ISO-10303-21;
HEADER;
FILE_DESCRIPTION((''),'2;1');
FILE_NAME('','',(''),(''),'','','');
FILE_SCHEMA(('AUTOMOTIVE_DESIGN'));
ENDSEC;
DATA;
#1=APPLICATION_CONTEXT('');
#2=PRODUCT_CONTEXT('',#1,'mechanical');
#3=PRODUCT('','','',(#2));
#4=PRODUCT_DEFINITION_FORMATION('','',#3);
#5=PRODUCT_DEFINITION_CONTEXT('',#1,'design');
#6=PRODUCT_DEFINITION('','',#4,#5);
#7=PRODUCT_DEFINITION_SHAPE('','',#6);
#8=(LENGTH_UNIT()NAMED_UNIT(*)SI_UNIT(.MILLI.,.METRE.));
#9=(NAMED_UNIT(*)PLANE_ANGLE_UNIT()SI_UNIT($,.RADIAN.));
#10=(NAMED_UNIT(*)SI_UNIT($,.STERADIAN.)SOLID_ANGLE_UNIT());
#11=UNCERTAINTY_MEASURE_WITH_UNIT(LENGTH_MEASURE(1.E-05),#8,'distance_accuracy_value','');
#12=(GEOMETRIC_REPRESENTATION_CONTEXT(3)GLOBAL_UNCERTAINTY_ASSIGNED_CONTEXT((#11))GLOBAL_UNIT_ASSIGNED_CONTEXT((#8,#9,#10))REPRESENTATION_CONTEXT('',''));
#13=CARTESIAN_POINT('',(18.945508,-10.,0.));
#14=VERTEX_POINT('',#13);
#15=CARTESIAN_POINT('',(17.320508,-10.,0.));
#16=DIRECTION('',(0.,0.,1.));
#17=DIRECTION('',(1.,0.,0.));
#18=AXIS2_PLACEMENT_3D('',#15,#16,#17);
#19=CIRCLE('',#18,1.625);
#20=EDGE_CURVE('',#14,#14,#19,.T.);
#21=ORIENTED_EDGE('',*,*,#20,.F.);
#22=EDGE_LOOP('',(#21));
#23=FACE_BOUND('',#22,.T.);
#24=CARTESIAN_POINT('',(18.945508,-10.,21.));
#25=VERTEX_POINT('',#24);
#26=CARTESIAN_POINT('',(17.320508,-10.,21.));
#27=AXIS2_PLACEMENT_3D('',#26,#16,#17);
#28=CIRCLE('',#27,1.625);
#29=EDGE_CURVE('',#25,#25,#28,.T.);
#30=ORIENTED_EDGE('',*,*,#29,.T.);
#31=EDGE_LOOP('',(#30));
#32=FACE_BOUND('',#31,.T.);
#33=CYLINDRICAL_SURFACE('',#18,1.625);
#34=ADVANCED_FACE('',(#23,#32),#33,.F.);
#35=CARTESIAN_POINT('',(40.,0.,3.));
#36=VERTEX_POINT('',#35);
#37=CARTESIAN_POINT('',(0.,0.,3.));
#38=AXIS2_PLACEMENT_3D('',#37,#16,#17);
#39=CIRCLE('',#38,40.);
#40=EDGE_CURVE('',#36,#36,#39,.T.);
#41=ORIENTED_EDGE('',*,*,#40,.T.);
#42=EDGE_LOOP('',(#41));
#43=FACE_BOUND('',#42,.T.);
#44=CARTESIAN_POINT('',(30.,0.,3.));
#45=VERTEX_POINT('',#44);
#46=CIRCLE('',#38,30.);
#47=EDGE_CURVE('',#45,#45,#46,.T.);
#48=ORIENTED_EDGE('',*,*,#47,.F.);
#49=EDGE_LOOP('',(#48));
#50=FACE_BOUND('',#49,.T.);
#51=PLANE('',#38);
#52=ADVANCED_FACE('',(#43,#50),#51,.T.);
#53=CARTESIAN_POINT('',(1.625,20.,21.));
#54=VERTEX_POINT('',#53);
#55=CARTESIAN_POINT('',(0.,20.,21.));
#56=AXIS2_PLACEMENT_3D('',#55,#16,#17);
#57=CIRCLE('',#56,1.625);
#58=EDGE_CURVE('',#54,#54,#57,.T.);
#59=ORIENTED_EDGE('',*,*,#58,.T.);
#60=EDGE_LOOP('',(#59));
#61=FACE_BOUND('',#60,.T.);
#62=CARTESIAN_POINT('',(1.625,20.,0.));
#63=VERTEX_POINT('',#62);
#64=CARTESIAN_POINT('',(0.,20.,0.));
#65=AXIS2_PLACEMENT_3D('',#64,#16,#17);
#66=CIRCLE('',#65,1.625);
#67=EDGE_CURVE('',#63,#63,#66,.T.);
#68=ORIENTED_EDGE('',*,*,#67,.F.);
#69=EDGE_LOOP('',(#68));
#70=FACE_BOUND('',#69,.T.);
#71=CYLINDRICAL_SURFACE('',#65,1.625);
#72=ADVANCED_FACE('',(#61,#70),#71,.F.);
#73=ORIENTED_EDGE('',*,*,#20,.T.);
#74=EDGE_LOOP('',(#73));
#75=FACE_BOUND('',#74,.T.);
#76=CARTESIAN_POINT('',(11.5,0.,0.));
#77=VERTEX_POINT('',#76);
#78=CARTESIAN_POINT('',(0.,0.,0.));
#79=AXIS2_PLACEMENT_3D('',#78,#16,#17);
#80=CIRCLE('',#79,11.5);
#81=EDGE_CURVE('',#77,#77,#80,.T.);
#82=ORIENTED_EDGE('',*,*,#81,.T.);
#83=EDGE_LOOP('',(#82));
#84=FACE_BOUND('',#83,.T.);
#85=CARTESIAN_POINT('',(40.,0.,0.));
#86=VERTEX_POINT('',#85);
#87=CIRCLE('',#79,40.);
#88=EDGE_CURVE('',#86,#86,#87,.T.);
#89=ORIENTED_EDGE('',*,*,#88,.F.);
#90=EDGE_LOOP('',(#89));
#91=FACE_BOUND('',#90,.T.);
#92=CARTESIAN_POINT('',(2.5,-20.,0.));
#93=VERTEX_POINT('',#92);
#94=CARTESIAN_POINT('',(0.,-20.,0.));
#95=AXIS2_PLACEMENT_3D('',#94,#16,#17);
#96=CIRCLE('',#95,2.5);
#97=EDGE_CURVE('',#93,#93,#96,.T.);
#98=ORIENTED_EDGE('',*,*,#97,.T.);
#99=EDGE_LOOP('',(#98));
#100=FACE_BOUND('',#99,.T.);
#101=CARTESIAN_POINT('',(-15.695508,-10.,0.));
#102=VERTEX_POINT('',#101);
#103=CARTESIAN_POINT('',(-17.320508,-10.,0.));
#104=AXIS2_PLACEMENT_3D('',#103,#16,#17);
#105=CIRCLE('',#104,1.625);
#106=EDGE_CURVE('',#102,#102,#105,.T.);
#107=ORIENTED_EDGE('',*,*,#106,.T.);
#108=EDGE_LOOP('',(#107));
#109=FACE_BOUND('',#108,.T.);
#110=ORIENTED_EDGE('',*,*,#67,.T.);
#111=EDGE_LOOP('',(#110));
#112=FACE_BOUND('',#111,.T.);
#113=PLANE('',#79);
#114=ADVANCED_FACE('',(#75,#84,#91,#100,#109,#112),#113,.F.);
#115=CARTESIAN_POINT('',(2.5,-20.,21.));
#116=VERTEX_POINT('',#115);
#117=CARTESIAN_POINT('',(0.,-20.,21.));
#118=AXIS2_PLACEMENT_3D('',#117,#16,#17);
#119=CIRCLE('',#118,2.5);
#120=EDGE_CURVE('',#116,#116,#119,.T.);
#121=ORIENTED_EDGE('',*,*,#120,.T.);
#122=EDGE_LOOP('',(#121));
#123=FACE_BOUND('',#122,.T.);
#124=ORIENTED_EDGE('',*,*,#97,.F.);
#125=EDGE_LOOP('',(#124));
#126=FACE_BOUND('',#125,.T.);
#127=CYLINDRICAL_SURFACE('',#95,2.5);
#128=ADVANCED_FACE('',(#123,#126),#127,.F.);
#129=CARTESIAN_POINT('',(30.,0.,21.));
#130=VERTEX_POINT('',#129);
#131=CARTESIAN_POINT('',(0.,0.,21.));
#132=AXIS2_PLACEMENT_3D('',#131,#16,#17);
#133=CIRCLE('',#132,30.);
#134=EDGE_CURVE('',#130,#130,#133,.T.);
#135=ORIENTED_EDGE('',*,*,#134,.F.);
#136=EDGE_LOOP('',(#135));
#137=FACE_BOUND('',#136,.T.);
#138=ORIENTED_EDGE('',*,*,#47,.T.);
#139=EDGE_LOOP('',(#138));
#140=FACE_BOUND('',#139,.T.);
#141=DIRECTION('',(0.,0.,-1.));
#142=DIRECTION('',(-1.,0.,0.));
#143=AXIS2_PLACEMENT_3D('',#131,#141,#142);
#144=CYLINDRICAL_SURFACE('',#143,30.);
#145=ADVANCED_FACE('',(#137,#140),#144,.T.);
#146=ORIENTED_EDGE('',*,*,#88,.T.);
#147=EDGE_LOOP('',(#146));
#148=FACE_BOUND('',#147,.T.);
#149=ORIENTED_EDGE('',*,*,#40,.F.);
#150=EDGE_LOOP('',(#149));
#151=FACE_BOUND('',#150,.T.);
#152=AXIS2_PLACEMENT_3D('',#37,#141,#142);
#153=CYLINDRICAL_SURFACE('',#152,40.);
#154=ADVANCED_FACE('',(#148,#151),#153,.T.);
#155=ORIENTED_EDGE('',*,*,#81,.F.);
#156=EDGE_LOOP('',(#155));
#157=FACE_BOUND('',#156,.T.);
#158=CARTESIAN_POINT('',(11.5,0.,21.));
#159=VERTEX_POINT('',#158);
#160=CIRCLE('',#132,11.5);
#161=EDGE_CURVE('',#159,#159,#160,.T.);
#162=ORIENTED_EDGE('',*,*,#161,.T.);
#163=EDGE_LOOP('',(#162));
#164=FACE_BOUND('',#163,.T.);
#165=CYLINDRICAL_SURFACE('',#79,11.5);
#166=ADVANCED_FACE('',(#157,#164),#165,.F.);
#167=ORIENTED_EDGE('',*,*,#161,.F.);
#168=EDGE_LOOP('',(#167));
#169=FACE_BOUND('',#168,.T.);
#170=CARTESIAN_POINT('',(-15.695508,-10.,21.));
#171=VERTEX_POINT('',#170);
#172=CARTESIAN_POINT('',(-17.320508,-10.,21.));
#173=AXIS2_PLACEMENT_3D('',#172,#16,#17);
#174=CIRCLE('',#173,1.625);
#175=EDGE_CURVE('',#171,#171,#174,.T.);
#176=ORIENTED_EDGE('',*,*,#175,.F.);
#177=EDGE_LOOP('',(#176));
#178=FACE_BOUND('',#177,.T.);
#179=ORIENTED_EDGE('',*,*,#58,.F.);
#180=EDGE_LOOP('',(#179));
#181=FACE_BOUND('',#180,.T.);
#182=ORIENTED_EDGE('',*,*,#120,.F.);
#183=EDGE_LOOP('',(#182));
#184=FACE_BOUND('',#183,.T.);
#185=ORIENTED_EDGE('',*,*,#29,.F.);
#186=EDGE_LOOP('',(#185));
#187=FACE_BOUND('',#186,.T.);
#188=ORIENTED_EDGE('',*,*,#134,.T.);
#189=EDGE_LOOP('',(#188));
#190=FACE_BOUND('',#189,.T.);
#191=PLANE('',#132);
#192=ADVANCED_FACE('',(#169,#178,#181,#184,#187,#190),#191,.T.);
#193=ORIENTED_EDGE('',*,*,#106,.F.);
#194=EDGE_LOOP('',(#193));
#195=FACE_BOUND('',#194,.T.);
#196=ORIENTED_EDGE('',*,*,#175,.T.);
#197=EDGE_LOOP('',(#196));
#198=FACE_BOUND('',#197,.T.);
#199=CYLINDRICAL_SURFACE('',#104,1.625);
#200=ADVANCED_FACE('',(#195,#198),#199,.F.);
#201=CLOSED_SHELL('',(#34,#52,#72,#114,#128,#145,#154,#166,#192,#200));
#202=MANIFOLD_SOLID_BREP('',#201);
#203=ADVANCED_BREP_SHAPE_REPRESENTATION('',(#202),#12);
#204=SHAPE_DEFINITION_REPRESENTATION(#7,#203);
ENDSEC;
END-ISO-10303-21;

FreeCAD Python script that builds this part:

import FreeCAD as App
import Part
import Sketcher

V = App.Vector

doc = App.newDocument("Part")
body = doc.addObject("PartDesign::Body", "Body")

# Sketch on XY plane
sketch1 = body.newObject("Sketcher::SketchObject", "Sketch")
sketch1.AttachmentSupport = (doc.getObject("XY_Plane"), [""])
sketch1.MapMode = "FlatFace"
sketch1.addGeometry(Part.Circle(V(0, 0, 0), V(0, 0, 1), 40), False)
sketch1.addConstraint(Sketcher.Constraint("Coincident", 0, 3, -1, 1))
sketch1.addConstraint(Sketcher.Constraint("Diameter", 0, 80.0))
pad1 = body.newObject("PartDesign::Pad", "Pad")
pad1.Profile = sketch1
pad1.Length = 3

# Sketch on XY plane
sketch2 = body.newObject("Sketcher::SketchObject", "Sketch001")
sketch2.AttachmentSupport = (doc.getObject("XY_Plane"), [""])
sketch2.MapMode = "FlatFace"
sketch2.AttachmentOffset = App.Placement(V(0, 0, 3), App.Rotation())
sketch2.addGeometry(Part.Circle(V(0, 0, 0), V(0, 0, 1), 30), False)
sketch2.addConstraint(Sketcher.Constraint("Coincident", 0, 3, -1, 1))
sketch2.addConstraint(Sketcher.Constraint("Diameter", 0, 60.0))
pad2 = body.newObject("PartDesign::Pad", "Pad001")
pad2.Profile = sketch2
pad2.Length = 18

# Sketch on XY plane
sketch3 = body.newObject("Sketcher::SketchObject", "Sketch002")
sketch3.AttachmentSupport = (doc.getObject("XY_Plane"), [""])
sketch3.MapMode = "FlatFace"
sketch3.AttachmentOffset = App.Placement(V(0, 0, 21), App.Rotation())
sketch3.addGeometry(Part.Circle(V(0, 20, 0), V(0, 0, 1), 1.6), False)
sketch3.addGeometry(Part.Circle(V(17.3, -10, 0), V(0, 0, 1), 1.6), False)
sketch3.addGeometry(Part.Circle(V(-17.3, -10, 0), V(0, 0, 1), 1.6), False)
sketch3.addGeometry(Part.Circle(V(0, 0, 0), V(0, 0, 1), 11.5), False)
sketch3.addGeometry(Part.Circle(V(0, -20, 0), V(0, 0, 1), 2.5), False)
sketch3.addConstraint(Sketcher.Constraint("Coincident", 3, 3, -1, 1))
sketch3.addConstraint(Sketcher.Constraint("Equal", 0, 1))
sketch3.addConstraint(Sketcher.Constraint("Equal", 1, 2))
sketch3.addConstraint(Sketcher.Constraint("Symmetric", 0, 3, 4, 3, -1, 1))
sketch3.addConstraint(Sketcher.Constraint("Symmetric", 1, 3, 2, 3, -2))
sketch3.addConstraint(Sketcher.Constraint("PointOnObject", 0, 3, -2))
sketch3.addConstraint(Sketcher.Constraint("Diameter", 3, 23.0))
sketch3.addConstraint(Sketcher.Constraint("Diameter", 4, 5.0))
sketch3.addConstraint(Sketcher.Constraint("Diameter", 0, 3.25))
sketch3.addConstraint(Sketcher.Constraint("DistanceY", -1, 1, 0, 3, 20.0))
sketch3.addConstraint(Sketcher.Constraint("DistanceY", 1, 3, -1, 1, 10.0))
sketch3.addConstraint(Sketcher.Constraint("DistanceX", -1, 1, 1, 3, 17.320508))
pocket1 = body.newObject("PartDesign::Pocket", "Pocket")
pocket1.Profile = sketch3
pocket1.Type = "ThroughAll"

doc.recompute()
